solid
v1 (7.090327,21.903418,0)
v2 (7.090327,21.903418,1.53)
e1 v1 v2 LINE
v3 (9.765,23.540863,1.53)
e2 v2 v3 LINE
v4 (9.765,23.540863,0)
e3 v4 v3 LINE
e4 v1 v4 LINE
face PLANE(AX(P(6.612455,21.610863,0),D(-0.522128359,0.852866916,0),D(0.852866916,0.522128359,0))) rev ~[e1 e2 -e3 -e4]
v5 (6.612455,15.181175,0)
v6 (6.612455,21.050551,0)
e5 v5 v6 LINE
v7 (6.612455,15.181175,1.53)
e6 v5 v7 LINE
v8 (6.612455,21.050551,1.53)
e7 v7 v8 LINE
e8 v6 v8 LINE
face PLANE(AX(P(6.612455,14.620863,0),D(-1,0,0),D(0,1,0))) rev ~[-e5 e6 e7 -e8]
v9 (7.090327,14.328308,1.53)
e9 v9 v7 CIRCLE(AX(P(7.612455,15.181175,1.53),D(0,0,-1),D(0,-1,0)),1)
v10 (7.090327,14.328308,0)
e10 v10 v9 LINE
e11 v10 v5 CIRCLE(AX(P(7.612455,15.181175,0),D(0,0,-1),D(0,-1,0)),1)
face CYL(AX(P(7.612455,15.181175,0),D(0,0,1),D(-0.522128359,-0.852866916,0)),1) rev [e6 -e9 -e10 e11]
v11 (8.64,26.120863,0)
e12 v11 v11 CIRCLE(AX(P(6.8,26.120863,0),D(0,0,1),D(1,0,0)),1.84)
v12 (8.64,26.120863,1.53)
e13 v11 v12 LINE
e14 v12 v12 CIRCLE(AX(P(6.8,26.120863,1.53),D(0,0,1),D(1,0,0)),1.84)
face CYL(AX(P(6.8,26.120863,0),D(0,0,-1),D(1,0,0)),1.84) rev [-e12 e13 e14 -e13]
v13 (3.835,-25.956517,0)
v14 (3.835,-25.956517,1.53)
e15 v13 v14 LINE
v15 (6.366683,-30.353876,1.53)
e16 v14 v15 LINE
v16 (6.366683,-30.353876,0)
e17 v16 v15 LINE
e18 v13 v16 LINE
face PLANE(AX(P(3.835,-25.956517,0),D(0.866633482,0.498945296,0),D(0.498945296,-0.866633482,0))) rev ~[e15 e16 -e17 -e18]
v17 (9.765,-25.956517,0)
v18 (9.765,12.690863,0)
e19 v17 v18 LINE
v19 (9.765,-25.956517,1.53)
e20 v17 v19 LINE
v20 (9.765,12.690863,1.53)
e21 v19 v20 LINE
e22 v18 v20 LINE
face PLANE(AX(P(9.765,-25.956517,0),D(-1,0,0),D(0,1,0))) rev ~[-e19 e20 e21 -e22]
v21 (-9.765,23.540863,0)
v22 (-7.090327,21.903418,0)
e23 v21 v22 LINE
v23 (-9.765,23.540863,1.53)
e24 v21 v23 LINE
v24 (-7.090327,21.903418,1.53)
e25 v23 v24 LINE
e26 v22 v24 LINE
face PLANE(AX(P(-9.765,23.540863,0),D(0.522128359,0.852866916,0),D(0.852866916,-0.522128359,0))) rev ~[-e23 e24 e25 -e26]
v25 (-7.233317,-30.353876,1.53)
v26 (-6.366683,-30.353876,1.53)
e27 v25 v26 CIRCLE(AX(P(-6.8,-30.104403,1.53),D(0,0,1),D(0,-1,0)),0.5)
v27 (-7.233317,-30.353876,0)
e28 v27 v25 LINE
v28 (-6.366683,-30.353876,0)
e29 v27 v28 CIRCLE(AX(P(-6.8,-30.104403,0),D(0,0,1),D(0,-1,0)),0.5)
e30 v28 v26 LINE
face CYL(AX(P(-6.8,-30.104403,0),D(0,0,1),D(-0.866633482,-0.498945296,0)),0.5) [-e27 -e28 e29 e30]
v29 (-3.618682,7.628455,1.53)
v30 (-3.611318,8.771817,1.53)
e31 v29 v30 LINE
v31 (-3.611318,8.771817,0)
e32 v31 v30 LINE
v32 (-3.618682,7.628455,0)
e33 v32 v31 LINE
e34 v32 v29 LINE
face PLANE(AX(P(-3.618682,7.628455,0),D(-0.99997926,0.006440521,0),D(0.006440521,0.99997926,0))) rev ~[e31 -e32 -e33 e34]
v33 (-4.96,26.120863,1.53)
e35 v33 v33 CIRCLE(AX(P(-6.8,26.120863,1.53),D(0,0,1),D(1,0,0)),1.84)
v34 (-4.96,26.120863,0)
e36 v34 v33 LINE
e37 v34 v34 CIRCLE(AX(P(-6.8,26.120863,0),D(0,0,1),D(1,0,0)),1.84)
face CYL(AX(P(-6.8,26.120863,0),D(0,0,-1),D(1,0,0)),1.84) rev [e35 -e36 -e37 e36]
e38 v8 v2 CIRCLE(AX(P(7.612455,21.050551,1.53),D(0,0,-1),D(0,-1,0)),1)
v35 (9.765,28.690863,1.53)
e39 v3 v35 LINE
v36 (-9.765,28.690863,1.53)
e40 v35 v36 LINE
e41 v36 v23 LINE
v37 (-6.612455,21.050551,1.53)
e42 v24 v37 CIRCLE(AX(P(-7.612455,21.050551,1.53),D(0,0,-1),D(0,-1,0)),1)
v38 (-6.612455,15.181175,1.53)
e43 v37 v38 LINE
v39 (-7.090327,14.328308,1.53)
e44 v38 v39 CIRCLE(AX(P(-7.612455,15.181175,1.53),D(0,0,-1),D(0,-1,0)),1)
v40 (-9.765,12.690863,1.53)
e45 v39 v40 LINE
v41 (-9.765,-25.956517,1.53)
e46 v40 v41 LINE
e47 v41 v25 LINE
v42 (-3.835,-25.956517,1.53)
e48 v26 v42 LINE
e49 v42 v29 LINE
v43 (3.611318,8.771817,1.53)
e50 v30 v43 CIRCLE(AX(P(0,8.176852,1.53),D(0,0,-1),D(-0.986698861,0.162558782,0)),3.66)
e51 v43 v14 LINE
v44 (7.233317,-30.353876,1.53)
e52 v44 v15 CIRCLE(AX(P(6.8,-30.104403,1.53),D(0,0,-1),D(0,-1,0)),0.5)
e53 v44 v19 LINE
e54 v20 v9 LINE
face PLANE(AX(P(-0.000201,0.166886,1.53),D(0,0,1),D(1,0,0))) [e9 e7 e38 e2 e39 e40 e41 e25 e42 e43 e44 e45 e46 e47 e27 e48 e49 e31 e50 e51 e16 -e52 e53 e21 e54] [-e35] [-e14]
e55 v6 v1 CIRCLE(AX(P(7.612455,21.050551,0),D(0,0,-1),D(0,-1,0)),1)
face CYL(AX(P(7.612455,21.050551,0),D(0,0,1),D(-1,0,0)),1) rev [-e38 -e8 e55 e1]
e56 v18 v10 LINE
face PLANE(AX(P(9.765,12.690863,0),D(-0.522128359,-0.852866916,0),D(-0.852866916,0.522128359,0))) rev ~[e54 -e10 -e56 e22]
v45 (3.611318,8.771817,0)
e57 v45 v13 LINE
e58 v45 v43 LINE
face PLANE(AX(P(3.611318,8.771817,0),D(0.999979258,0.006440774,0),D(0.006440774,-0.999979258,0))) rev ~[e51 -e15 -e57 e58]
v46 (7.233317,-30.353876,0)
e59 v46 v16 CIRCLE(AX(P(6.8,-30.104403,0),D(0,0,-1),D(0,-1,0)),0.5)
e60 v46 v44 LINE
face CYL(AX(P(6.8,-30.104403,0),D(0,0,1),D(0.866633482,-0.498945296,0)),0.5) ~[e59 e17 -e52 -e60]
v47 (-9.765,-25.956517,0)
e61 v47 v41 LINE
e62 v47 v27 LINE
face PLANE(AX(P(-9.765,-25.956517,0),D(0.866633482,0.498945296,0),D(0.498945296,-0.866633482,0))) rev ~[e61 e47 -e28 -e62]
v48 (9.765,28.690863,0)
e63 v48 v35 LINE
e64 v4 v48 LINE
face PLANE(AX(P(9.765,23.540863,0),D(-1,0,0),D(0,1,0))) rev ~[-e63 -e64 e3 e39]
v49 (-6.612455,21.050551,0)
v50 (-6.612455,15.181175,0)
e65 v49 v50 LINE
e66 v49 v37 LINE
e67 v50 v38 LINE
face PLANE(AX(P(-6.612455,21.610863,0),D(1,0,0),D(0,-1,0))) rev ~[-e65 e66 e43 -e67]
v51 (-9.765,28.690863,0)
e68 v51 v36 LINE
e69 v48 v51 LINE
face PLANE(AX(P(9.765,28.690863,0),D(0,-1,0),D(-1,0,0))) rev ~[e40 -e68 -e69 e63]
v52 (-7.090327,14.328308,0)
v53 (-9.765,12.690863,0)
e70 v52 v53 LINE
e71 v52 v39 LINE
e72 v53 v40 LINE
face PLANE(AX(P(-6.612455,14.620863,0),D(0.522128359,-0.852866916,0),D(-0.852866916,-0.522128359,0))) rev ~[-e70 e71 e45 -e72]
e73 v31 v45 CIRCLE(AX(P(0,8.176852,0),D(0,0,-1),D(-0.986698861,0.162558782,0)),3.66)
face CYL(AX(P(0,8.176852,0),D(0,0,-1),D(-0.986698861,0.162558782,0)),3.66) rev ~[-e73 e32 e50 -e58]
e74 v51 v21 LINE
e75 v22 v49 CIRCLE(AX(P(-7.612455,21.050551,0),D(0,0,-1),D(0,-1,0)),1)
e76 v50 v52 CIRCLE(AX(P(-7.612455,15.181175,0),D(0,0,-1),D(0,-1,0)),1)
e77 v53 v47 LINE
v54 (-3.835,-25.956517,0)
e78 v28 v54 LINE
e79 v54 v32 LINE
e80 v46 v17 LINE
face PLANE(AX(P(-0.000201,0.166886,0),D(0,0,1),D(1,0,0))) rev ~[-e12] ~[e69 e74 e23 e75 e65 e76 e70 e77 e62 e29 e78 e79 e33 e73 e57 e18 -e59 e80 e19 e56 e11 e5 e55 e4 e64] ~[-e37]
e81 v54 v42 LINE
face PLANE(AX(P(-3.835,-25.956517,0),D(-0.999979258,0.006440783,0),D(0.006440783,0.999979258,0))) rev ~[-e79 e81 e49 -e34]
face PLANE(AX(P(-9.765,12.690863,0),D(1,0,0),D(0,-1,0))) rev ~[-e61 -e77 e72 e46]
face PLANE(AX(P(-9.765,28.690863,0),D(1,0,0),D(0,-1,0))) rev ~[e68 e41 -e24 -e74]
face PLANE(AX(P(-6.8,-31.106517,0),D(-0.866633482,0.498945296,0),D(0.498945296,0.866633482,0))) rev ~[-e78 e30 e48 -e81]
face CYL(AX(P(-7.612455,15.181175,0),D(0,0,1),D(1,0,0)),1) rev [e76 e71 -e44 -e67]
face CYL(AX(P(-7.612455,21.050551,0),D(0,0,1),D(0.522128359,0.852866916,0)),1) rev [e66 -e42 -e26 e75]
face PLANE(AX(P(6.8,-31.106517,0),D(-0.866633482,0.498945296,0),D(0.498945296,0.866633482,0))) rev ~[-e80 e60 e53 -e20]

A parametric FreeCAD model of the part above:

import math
import FreeCAD as App
import Part
import Sketcher

V = App.Vector
Q = App.Units.Quantity


def edges_at(feature, points):
    """Names of the edges that pass closest to the given points."""
    edges = feature.Shape.Edges
    near = lambda p: min(range(len(edges)), key=lambda i: edges[i].distToShape(Part.Vertex(*p))[0])
    return sorted({f"Edge{near(p) + 1}" for p in points})

doc = App.newDocument("Part")
params = doc.addObject("Spreadsheet::Sheet", "Params")
for row, (alias, value) in enumerate([
    ("sketch1_diameter", "3.68 mm"),
    ("sketch1_radius", "3.66 mm"),
    ("sketch1_width", "19.53 mm"),
    ("sketch1_height", "5.15 mm"),
    ("sketch1_height2", "6.99 mm"),
    ("pad1_length", "1.53 mm"),
    ("fillet_radius", "1 mm"),
    ("fillet2_radius", "0.5 mm"),
], start=1):
    params.set(f"A{row}", alias)
    params.set(f"B{row}", "=" + value)
    params.setAlias(f"B{row}", alias)

body = doc.addObject("PartDesign::Body", "Body")

sketch1 = doc.addObject("Sketcher::SketchObject", "Sketch")
body.addObject(sketch1)
sketch1.AttachmentSupport = (doc.XY_Plane, [""])
sketch1.MapMode = "FlatFace"
sketch1.addGeometry([
    Part.LineSegment(V(-9.8, 28.7, 0), V(-9.8, 23.5, 0)),
    Part.LineSegment(V(-9.8, 23.5, 0), V(-6.6, 21.6, 0)),
    Part.LineSegment(V(-6.6, 21.6, 0), V(-6.6, 14.6, 0)),
    Part.LineSegment(V(-6.6, 14.6, 0), V(-9.8, 12.7, 0)),
    Part.LineSegment(V(-9.8, 12.7, 0), V(-9.8, -26, 0)),
    Part.LineSegment(V(-9.8, -26, 0), V(-6.8, -31.1, 0)),
    Part.LineSegment(V(-6.8, -31.1, 0), V(-3.8, -26, 0)),
    Part.LineSegment(V(-3.8, -26, 0), V(-3.6, 7.6, 0)),
    Part.LineSegment(V(-3.6, 7.6, 0), V(-3.6, 8.8, 0)),
    Part.ArcOfCircle(Part.Circle(V(0, 8.2, 0), V(0, 0, 1), 3.7), math.radians(9), math.radians(171)),
    Part.LineSegment(V(3.6, 8.8, 0), V(3.8, -26, 0)),
    Part.LineSegment(V(3.8, -26, 0), V(6.8, -31.1, 0)),
    Part.LineSegment(V(6.8, -31.1, 0), V(9.8, -26, 0)),
    Part.LineSegment(V(9.8, -26, 0), V(9.8, 12.7, 0)),
    Part.LineSegment(V(9.8, 12.7, 0), V(6.6, 14.6, 0)),
    Part.LineSegment(V(6.6, 14.6, 0), V(6.6, 21.6, 0)),
    Part.LineSegment(V(6.6, 21.6, 0), V(9.8, 23.5, 0)),
    Part.LineSegment(V(9.8, 23.5, 0), V(9.8, 28.7, 0)),
    Part.LineSegment(V(9.8, 28.7, 0), V(-9.8, 28.7, 0)),
    Part.Circle(V(-6.8, 26.1, 0), V(0, 0, 1), 1.8),
    Part.Circle(V(6.8, 26.1, 0), V(0, 0, 1), 1.8),
], False)
sketch1.addConstraint([
    Sketcher.Constraint("Coincident", 0, 2, 1, 1),
    Sketcher.Constraint("Coincident", 1, 2, 2, 1),
    Sketcher.Constraint("Coincident", 2, 2, 3, 1),
    Sketcher.Constraint("Coincident", 3, 2, 4, 1),
    Sketcher.Constraint("Coincident", 4, 2, 5, 1),
    Sketcher.Constraint("Coincident", 5, 2, 6, 1),
    Sketcher.Constraint("Coincident", 6, 2, 7, 1),
    Sketcher.Constraint("Coincident", 7, 2, 8, 1),
    Sketcher.Constraint("Coincident", 8, 2, 9, 2),
    Sketcher.Constraint("Coincident", 9, 1, 10, 1),
    Sketcher.Constraint("Coincident", 10, 2, 11, 1),
    Sketcher.Constraint("Coincident", 11, 2, 12, 1),
    Sketcher.Constraint("Coincident", 12, 2, 13, 1),
    Sketcher.Constraint("Coincident", 13, 2, 14, 1),
    Sketcher.Constraint("Coincident", 14, 2, 15, 1),
    Sketcher.Constraint("Coincident", 15, 2, 16, 1),
    Sketcher.Constraint("Coincident", 16, 2, 17, 1),
    Sketcher.Constraint("Coincident", 17, 2, 18, 1),
    Sketcher.Constraint("Coincident", 18, 2, 0, 1),
    Sketcher.Constraint("Vertical", 0),
    Sketcher.Constraint("Vertical", 2),
    Sketcher.Constraint("Vertical", 4),
    Sketcher.Constraint("Vertical", 13),
    Sketcher.Constraint("Vertical", 15),
    Sketcher.Constraint("Vertical", 17),
    Sketcher.Constraint("Horizontal", 18),
    Sketcher.Constraint("Equal", 19, 20),
    Sketcher.Constraint("Symmetric", 19, 3, 20, 3, -2),
    Sketcher.Constraint("Symmetric", 8, 2, 9, 1, -2),
    Sketcher.Constraint("Symmetric", 6, 2, 10, 2, -2),
    Sketcher.Constraint("Symmetric", 5, 2, 11, 2, -2),
    Sketcher.Constraint("Symmetric", 4, 2, 12, 2, -2),
    Sketcher.Constraint("Symmetric", 2, 2, 14, 2, -2),
    Sketcher.Constraint("Symmetric", 0, 2, 16, 2, -2),
    Sketcher.Constraint("Parallel", 7, 8),
    Sketcher.Constraint("Parallel", 5, 11),
    Sketcher.Constraint("Parallel", 1, 14),
    Sketcher.Constraint("Parallel", 3, 16),
    Sketcher.Constraint("Horizontal", 4, 2, 6, 2),
    Sketcher.Constraint("Horizontal", 3, 2, 13, 2),
    Sketcher.Constraint("Vertical", 0, 2, 3, 2),
    Sketcher.Constraint("Vertical", 19, 3, 5, 2),
    Sketcher.Constraint("Diameter", 19, Q("3.68 mm")),
    Sketcher.Constraint("Radius", 9, Q("3.66 mm")),
    Sketcher.Constraint("DistanceY", 13, 2, 17, 2, Q("16 mm")),
    Sketcher.Constraint("DistanceX", 18, 2, 18, 1, Q("19.53 mm")),
    Sketcher.Constraint("DistanceY", 0, 2, 0, 1, Q("5.15 mm")),
    Sketcher.Constraint("DistanceY", 2, 2, 2, 1, Q("6.99 mm")),
    Sketcher.Constraint("DistanceX", 19, 3, -1, 1, Q("6.8 mm")),
    Sketcher.Constraint("DistanceY", 2, 2, 19, 3, Q("11.5 mm")),
    Sketcher.Constraint("DistanceY", 5, 2, 4, 2, Q("5.15 mm")),
    Sketcher.Constraint("DistanceX", 7, 2, 9, 1, Q("7.23 mm")),
    Sketcher.Constraint("DistanceY", 4, 2, 4, 1, Q("38.64738 mm")),
    Sketcher.Constraint("Distance", 1, Q("3.696409 mm")),
    Sketcher.Constraint("Distance", 7, Q("33.585669 mm")),
    Sketcher.Constraint("DistanceY", -1, 1, 9, 3, Q("8.176852 mm")),
    Sketcher.Constraint("DistanceY", 9, 3, 19, 3, Q("17.944011 mm")),
])
sketch1.setExpression("Constraints[42]", "Params.sketch1_diameter")
sketch1.setExpression("Constraints[43]", "Params.sketch1_radius")
sketch1.setExpression("Constraints[45]", "Params.sketch1_width")
sketch1.setExpression("Constraints[46]", "Params.sketch1_height")
sketch1.setExpression("Constraints[47]", "Params.sketch1_height2")
pad1 = doc.addObject("PartDesign::Pad", "Pad")
body.addObject(pad1)
pad1.Profile = sketch1
pad1.setExpression("Length", "Params.pad1_length")
doc.recompute()

fillet = doc.addObject("PartDesign::Fillet", "Fillet")
body.addObject(fillet)
fillet.Base = (pad1, edges_at(pad1, [
    (6.612, 21.611, 0.765),
    (6.612, 14.621, 0.765),
    (-6.612, 21.611, 0.765),
    (-6.612, 14.621, 0.765),
]))
fillet.setExpression("Radius", "Params.fillet_radius")
doc.recompute()

fillet2 = doc.addObject("PartDesign::Fillet", "Fillet001")
body.addObject(fillet2)
fillet2.Base = (fillet, edges_at(fillet, [(-6.8, -31.107, 0.765), (6.8, -31.107, 0.765)]))
fillet2.setExpression("Radius", "Params.fillet2_radius")

doc.recompute()
